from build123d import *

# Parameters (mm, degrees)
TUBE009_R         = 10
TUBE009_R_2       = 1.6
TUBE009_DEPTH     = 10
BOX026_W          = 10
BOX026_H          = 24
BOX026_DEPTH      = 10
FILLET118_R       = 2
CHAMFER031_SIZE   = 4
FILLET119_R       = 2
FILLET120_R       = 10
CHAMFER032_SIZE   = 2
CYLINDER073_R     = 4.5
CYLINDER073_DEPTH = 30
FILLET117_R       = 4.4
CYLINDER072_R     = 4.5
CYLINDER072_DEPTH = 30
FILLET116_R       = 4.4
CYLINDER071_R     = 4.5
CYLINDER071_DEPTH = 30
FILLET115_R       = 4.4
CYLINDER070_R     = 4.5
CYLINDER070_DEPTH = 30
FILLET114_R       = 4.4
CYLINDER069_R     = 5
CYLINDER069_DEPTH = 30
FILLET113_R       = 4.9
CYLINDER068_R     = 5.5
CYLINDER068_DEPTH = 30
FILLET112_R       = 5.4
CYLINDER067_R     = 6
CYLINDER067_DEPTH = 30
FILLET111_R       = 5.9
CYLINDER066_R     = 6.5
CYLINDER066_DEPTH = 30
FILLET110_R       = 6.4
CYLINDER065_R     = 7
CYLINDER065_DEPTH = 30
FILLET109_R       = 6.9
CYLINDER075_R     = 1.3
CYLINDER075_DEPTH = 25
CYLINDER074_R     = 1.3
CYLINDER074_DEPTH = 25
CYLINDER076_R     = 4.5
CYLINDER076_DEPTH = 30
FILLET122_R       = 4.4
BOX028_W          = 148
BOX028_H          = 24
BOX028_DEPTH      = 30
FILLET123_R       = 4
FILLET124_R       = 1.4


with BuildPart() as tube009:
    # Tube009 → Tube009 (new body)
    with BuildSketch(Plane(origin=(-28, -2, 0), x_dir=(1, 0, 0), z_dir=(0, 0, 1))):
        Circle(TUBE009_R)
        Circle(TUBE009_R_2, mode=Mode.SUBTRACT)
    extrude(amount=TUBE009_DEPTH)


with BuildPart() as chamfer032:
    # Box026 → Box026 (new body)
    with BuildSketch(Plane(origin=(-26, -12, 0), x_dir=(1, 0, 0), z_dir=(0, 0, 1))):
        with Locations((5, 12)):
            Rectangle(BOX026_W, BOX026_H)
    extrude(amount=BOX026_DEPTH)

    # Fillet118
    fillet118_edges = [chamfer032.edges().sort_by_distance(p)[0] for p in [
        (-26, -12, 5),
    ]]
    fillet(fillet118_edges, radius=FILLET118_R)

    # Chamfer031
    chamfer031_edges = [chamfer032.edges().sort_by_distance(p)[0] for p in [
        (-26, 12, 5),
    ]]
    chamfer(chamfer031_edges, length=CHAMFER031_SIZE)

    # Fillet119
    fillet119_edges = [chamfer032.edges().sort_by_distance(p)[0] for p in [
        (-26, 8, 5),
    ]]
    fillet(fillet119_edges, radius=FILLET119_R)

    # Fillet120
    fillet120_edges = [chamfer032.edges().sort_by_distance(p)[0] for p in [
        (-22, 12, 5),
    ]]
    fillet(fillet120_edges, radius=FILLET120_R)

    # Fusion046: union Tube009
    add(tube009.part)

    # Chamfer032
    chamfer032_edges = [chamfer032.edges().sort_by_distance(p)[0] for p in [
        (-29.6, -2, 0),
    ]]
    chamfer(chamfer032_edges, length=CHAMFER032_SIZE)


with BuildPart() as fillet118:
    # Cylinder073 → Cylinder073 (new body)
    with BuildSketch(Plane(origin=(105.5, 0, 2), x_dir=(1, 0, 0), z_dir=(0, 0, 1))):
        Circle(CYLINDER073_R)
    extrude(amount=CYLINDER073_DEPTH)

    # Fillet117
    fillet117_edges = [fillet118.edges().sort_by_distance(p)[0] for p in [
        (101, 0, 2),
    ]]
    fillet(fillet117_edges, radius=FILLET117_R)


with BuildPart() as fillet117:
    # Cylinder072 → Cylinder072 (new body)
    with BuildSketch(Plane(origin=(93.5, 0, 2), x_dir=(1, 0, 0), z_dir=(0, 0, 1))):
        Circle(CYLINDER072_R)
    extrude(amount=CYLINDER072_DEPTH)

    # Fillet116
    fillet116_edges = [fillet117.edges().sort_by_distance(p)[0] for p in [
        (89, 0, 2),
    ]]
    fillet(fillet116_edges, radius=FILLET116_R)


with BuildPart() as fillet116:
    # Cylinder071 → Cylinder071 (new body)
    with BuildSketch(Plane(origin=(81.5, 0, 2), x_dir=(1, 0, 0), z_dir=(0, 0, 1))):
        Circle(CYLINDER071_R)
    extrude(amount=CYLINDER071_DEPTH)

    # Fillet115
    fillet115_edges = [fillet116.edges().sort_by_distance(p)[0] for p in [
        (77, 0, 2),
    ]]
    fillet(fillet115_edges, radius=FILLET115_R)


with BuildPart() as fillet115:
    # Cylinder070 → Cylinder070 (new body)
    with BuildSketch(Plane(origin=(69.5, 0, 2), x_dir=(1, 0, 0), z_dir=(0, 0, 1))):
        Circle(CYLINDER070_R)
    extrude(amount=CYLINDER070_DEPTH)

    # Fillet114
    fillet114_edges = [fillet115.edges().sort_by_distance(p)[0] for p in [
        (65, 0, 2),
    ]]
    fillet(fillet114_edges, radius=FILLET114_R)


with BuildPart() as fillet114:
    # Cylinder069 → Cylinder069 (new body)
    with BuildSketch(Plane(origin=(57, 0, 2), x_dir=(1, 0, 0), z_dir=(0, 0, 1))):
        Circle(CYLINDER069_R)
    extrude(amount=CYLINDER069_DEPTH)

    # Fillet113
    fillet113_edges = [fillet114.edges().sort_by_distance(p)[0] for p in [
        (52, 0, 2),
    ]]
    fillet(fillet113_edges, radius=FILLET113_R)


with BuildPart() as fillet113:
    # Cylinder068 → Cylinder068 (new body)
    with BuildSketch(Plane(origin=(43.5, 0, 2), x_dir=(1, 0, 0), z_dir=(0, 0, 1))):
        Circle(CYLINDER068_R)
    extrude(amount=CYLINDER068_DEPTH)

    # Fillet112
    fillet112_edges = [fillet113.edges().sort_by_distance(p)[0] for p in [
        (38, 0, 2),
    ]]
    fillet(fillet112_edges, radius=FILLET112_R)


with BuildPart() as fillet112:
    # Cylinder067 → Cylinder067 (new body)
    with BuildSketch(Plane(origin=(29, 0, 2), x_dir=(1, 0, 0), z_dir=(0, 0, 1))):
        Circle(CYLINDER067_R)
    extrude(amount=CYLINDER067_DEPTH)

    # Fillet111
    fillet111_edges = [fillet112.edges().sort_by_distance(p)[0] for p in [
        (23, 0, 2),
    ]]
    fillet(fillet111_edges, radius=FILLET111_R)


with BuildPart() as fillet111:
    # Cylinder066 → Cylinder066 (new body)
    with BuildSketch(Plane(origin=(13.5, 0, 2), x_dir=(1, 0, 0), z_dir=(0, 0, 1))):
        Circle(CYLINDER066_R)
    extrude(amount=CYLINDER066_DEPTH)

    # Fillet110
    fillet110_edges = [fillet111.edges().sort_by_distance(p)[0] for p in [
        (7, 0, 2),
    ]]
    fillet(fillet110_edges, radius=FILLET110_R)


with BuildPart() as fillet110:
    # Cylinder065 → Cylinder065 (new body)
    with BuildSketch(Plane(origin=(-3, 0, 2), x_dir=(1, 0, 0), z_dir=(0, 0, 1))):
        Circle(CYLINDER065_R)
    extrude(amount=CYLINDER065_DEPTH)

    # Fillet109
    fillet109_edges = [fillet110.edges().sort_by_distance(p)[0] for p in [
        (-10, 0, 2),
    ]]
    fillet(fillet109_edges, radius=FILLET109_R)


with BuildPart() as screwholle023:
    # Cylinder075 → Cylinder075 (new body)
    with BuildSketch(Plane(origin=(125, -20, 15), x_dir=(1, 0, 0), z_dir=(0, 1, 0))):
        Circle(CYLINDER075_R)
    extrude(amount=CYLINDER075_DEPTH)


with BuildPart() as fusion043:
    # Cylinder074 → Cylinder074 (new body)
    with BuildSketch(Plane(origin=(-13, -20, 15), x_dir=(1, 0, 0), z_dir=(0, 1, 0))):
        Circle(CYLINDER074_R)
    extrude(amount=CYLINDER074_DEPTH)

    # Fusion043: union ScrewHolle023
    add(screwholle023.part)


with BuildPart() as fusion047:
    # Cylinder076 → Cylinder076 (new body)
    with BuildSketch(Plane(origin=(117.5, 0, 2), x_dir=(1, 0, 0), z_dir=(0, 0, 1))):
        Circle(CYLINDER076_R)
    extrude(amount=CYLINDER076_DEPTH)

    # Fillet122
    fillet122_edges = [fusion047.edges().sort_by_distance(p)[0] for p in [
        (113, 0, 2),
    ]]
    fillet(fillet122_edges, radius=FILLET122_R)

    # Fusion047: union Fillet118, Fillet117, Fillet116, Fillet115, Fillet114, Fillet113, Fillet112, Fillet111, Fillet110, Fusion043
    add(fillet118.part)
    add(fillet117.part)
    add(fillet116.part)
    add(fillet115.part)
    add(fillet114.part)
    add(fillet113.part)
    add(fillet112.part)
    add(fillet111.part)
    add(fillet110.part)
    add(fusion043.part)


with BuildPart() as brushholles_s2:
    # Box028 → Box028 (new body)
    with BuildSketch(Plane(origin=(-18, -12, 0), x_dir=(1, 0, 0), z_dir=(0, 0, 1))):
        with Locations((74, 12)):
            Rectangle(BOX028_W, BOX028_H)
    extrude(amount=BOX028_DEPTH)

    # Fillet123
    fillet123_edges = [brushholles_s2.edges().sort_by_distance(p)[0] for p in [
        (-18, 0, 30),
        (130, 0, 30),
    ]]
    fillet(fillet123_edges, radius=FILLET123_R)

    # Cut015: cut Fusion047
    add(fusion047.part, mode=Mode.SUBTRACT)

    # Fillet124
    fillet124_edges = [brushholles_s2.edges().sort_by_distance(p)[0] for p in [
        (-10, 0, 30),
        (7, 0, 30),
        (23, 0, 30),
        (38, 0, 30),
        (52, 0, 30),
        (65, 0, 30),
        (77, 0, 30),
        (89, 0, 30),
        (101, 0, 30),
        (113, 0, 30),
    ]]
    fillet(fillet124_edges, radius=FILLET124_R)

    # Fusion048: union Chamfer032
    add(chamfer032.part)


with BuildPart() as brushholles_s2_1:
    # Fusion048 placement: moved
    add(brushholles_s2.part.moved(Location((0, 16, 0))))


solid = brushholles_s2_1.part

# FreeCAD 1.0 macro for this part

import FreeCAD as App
import Part
import Sketcher
from FreeCAD import Vector
Q = App.Units.Quantity


def edges_at(feature, points):
    """Names of the edges that pass closest to the given points."""
    edges = feature.Shape.Edges
    near = lambda p: min(range(len(edges)), key=lambda i: edges[i].distToShape(Part.Vertex(*p))[0])
    return sorted({f"Edge{near(p) + 1}" for p in points})


def add_polygon(sketch, points):
    """Adds a closed chain of lines whose ends are joined by coincident constraints."""
    first, n = sketch.GeometryCount, len(points)
    for a, b in zip(points, points[1:] + points[:1]):
        sketch.addGeometry(Part.LineSegment(App.Vector(*a, 0), App.Vector(*b, 0)), False)
    for i in range(n):
        sketch.addConstraint(Sketcher.Constraint("Coincident", first + i, 2, first + (i + 1) % n, 1))

doc = App.newDocument("Part")
body = doc.addObject("PartDesign::Body", "Body")

sketch1 = body.newObject("Sketcher::SketchObject", "Sketch")
sketch1.AttachmentSupport = (doc.getObject("XY_Plane"), [""])
sketch1.MapMode = "FlatFace"
sketch1.addGeometry(Part.Circle(Vector(-28, -2, 0), Vector(0, 0, 1), 10), False)
sketch1.addGeometry(Part.Circle(Vector(-28, -2, 0), Vector(0, 0, 1), 1.6), False)
sketch1.addConstraint(Sketcher.Constraint("Coincident", 1, 3, 0, 3))
sketch1.addConstraint(Sketcher.Constraint("Diameter", 0, Q("20 mm")))
sketch1.addConstraint(Sketcher.Constraint("Diameter", 1, Q("3.2 mm")))
sketch1.addConstraint(Sketcher.Constraint("DistanceX", 0, 3, -1, 1, Q("28 mm")))
sketch1.addConstraint(Sketcher.Constraint("DistanceY", 0, 3, -1, 1, Q("2 mm")))
pad1 = body.newObject("PartDesign::Pad", "Pad")
pad1.Profile = sketch1
pad1.Length = 10
body2 = doc.addObject("PartDesign::Body", "Body001")

sketch2 = body2.newObject("Sketcher::SketchObject", "Sketch001")
sketch2.AttachmentSupport = (doc.getObject("XY_Plane001"), [""])
sketch2.MapMode = "FlatFace"
add_polygon(sketch2, [(-26, 12), (-26, -12), (-16, -12), (-16, 12)])
sketch2.addConstraint(Sketcher.Constraint("Vertical", 0))
sketch2.addConstraint(Sketcher.Constraint("Horizontal", 1))
sketch2.addConstraint(Sketcher.Constraint("Vertical", 2))
sketch2.addConstraint(Sketcher.Constraint("Horizontal", 3))
sketch2.addConstraint(Sketcher.Constraint("DistanceX", 1, 1, 1, 2, Q("10 mm")))
sketch2.addConstraint(Sketcher.Constraint("DistanceY", 0, 2, 0, 1, Q("24 mm")))
sketch2.addConstraint(Sketcher.Constraint("DistanceX", 0, 2, -1, 1, Q("26 mm")))
sketch2.addConstraint(Sketcher.Constraint("DistanceY", 0, 2, -1, 1, Q("12 mm")))
pad2 = body2.newObject("PartDesign::Pad", "Pad001")
pad2.Profile = sketch2
pad2.Length = 10
doc.recompute()

fillet = body2.newObject("PartDesign::Fillet", "Fillet")
fillet.Base = (pad2, edges_at(pad2, [(-26, -12, 5)]))
fillet.Radius = 2
doc.recompute()

chamfer = body2.newObject("PartDesign::Chamfer", "Chamfer")
chamfer.Base = (fillet, edges_at(fillet, [(-26, 12, 5)]))
chamfer.Size = 4
doc.recompute()

fillet2 = body2.newObject("PartDesign::Fillet", "Fillet001")
fillet2.Base = (chamfer, edges_at(chamfer, [(-26, 8, 5)]))
fillet2.Radius = 2
doc.recompute()

fillet3 = body2.newObject("PartDesign::Fillet", "Fillet002")
fillet3.Base = (fillet2, edges_at(fillet2, [(-22, 12, 5)]))
fillet3.Radius = 10
doc.recompute()

boolean = body2.newObject("PartDesign::Boolean", "Boolean")
boolean.Type = "Fuse"
boolean.addObjects([body])
doc.recompute()

chamfer2 = body2.newObject("PartDesign::Chamfer", "Chamfer001")
chamfer2.Base = (boolean, edges_at(boolean, [(-29.6, -2, 0)]))
chamfer2.Size = 2
body3 = doc.addObject("PartDesign::Body", "Body002")

sketch3 = body3.newObject("Sketcher::SketchObject", "Sketch002")
sketch3.AttachmentSupport = (doc.getObject("XY_Plane002"), [""])
sketch3.MapMode = "FlatFace"
sketch3.AttachmentOffset = App.Placement(Vector(0, 0, 2), App.Rotation())
sketch3.addGeometry(Part.Circle(Vector(105.5, 0, 0), Vector(0, 0, 1), 4.5), False)
sketch3.addConstraint(Sketcher.Constraint("PointOnObject", 0, 3, -1))
sketch3.addConstraint(Sketcher.Constraint("Diameter", 0, Q("9 mm")))
sketch3.addConstraint(Sketcher.Constraint("DistanceX", -1, 1, 0, 3, Q("105.5 mm")))
pad3 = body3.newObject("PartDesign::Pad", "Pad002")
pad3.Profile = sketch3
pad3.Length = 30
doc.recompute()

fillet4 = body3.newObject("PartDesign::Fillet", "Fillet003")
fillet4.Base = (pad3, edges_at(pad3, [(101, 0, 2)]))
fillet4.Radius = 4.4
body4 = doc.addObject("PartDesign::Body", "Body003")

sketch4 = body4.newObject("Sketcher::SketchObject", "Sketch003")
sketch4.AttachmentSupport = (doc.getObject("XY_Plane003"), [""])
sketch4.MapMode = "FlatFace"
sketch4.AttachmentOffset = App.Placement(Vector(0, 0, 2), App.Rotation())
sketch4.addGeometry(Part.Circle(Vector(93.5, 0, 0), Vector(0, 0, 1), 4.5), False)
sketch4.addConstraint(Sketcher.Constraint("PointOnObject", 0, 3, -1))
sketch4.addConstraint(Sketcher.Constraint("Diameter", 0, Q("9 mm")))
sketch4.addConstraint(Sketcher.Constraint("DistanceX", -1, 1, 0, 3, Q("93.5 mm")))
pad4 = body4.newObject("PartDesign::Pad", "Pad003")
pad4.Profile = sketch4
pad4.Length = 30
doc.recompute()

fillet5 = body4.newObject("PartDesign::Fillet", "Fillet004")
fillet5.Base = (pad4, edges_at(pad4, [(89, 0, 2)]))
fillet5.Radius = 4.4
body5 = doc.addObject("PartDesign::Body", "Body004")

sketch5 = body5.newObject("Sketcher::SketchObject", "Sketch004")
sketch5.AttachmentSupport = (doc.getObject("XY_Plane004"), [""])
sketch5.MapMode = "FlatFace"
sketch5.AttachmentOffset = App.Placement(Vector(0, 0, 2), App.Rotation())
sketch5.addGeometry(Part.Circle(Vector(81.5, 0, 0), Vector(0, 0, 1), 4.5), False)
sketch5.addConstraint(Sketcher.Constraint("PointOnObject", 0, 3, -1))
sketch5.addConstraint(Sketcher.Constraint("Diameter", 0, Q("9 mm")))
sketch5.addConstraint(Sketcher.Constraint("DistanceX", -1, 1, 0, 3, Q("81.5 mm")))
pad5 = body5.newObject("PartDesign::Pad", "Pad004")
pad5.Profile = sketch5
pad5.Length = 30
doc.recompute()

fillet6 = body5.newObject("PartDesign::Fillet", "Fillet005")
fillet6.Base = (pad5, edges_at(pad5, [(77, 0, 2)]))
fillet6.Radius = 4.4
body6 = doc.addObject("PartDesign::Body", "Body005")

sketch6 = body6.newObject("Sketcher::SketchObject", "Sketch005")
sketch6.AttachmentSupport = (doc.getObject("XY_Plane005"), [""])
sketch6.MapMode = "FlatFace"
sketch6.AttachmentOffset = App.Placement(Vector(0, 0, 2), App.Rotation())
sketch6.addGeometry(Part.Circle(Vector(69.5, 0, 0), Vector(0, 0, 1), 4.5), False)
sketch6.addConstraint(Sketcher.Constraint("PointOnObject", 0, 3, -1))
sketch6.addConstraint(Sketcher.Constraint("Diameter", 0, Q("9 mm")))
sketch6.addConstraint(Sketcher.Constraint("DistanceX", -1, 1, 0, 3, Q("69.5 mm")))
pad6 = body6.newObject("PartDesign::Pad", "Pad005")
pad6.Profile = sketch6
pad6.Length = 30
doc.recompute()

fillet7 = body6.newObject("PartDesign::Fillet", "Fillet006")
fillet7.Base = (pad6, edges_at(pad6, [(65, 0, 2)]))
fillet7.Radius = 4.4
body7 = doc.addObject("PartDesign::Body", "Body006")

sketch7 = body7.newObject("Sketcher::SketchObject", "Sketch006")
sketch7.AttachmentSupport = (doc.getObject("XY_Plane006"), [""])
sketch7.MapMode = "FlatFace"
sketch7.AttachmentOffset = App.Placement(Vector(0, 0, 2), App.Rotation())
sketch7.addGeometry(Part.Circle(Vector(57, 0, 0), Vector(0, 0, 1), 5), False)
sketch7.addConstraint(Sketcher.Constraint("PointOnObject", 0, 3, -1))
sketch7.addConstraint(Sketcher.Constraint("Diameter", 0, Q("10 mm")))
sketch7.addConstraint(Sketcher.Constraint("DistanceX", -1, 1, 0, 3, Q("57 mm")))
pad7 = body7.newObject("PartDesign::Pad", "Pad006")
pad7.Profile = sketch7
pad7.Length = 30
doc.recompute()

fillet8 = body7.newObject("PartDesign::Fillet", "Fillet007")
fillet8.Base = (pad7, edges_at(pad7, [(52, 0, 2)]))
fillet8.Radius = 4.9
body8 = doc.addObject("PartDesign::Body", "Body007")

sketch8 = body8.newObject("Sketcher::SketchObject", "Sketch007")
sketch8.AttachmentSupport = (doc.getObject("XY_Plane007"), [""])
sketch8.MapMode = "FlatFace"
sketch8.AttachmentOffset = App.Placement(Vector(0, 0, 2), App.Rotation())
sketch8.addGeometry(Part.Circle(Vector(43.5, 0, 0), Vector(0, 0, 1), 5.5), False)
sketch8.addConstraint(Sketcher.Constraint("PointOnObject", 0, 3, -1))
sketch8.addConstraint(Sketcher.Constraint("Diameter", 0, Q("11 mm")))
sketch8.addConstraint(Sketcher.Constraint("DistanceX", -1, 1, 0, 3, Q("43.5 mm")))
pad8 = body8.newObject("PartDesign::Pad", "Pad007")
pad8.Profile = sketch8
pad8.Length = 30
doc.recompute()

fillet9 = body8.newObject("PartDesign::Fillet", "Fillet008")
fillet9.Base = (pad8, edges_at(pad8, [(38, 0, 2)]))
fillet9.Radius = 5.4
body9 = doc.addObject("PartDesign::Body", "Body008")

sketch9 = body9.newObject("Sketcher::SketchObject", "Sketch008")
sketch9.AttachmentSupport = (doc.getObject("XY_Plane008"), [""])
sketch9.MapMode = "FlatFace"
sketch9.AttachmentOffset = App.Placement(Vector(0, 0, 2), App.Rotation())
sketch9.addGeometry(Part.Circle(Vector(29, 0, 0), Vector(0, 0, 1), 6), False)
sketch9.addConstraint(Sketcher.Constraint("PointOnObject", 0, 3, -1))
sketch9.addConstraint(Sketcher.Constraint("Diameter", 0, Q("12 mm")))
sketch9.addConstraint(Sketcher.Constraint("DistanceX", -1, 1, 0, 3, Q("29 mm")))
pad9 = body9.newObject("PartDesign::Pad", "Pad008")
pad9.Profile = sketch9
pad9.Length = 30
doc.recompute()

fillet10 = body9.newObject("PartDesign::Fillet", "Fillet009")
fillet10.Base = (pad9, edges_at(pad9, [(23, 0, 2)]))
fillet10.Radius = 5.9
body10 = doc.addObject("PartDesign::Body", "Body009")

sketch10 = body10.newObject("Sketcher::SketchObject", "Sketch009")
sketch10.AttachmentSupport = (doc.getObject("XY_Plane009"), [""])
sketch10.MapMode = "FlatFace"
sketch10.AttachmentOffset = App.Placement(Vector(0, 0, 2), App.Rotation())
sketch10.addGeometry(Part.Circle(Vector(13.5, 0, 0), Vector(0, 0, 1), 6.5), False)
sketch10.addConstraint(Sketcher.Constraint("PointOnObject", 0, 3, -1))
sketch10.addConstraint(Sketcher.Constraint("Diameter", 0, Q("13 mm")))
sketch10.addConstraint(Sketcher.Constraint("DistanceX", -1, 1, 0, 3, Q("13.5 mm")))
pad10 = body10.newObject("PartDesign::Pad", "Pad009")
pad10.Profile = sketch10
pad10.Length = 30
doc.recompute()

fillet11 = body10.newObject("PartDesign::Fillet", "Fillet010")
fillet11.Base = (pad10, edges_at(pad10, [(7, 0, 2)]))
fillet11.Radius = 6.4
body11 = doc.addObject("PartDesign::Body", "Body010")

sketch11 = body11.newObject("Sketcher::SketchObject", "Sketch010")
sketch11.AttachmentSupport = (doc.getObject("XY_Plane010"), [""])
sketch11.MapMode = "FlatFace"
sketch11.AttachmentOffset = App.Placement(Vector(0, 0, 2), App.Rotation())
sketch11.addGeometry(Part.Circle(Vector(-3, 0, 0), Vector(0, 0, 1), 7), False)
sketch11.addConstraint(Sketcher.Constraint("PointOnObject", 0, 3, -1))
sketch11.addConstraint(Sketcher.Constraint("Diameter", 0, Q("14 mm")))
sketch11.addConstraint(Sketcher.Constraint("DistanceX", 0, 3, -1, 1, Q("3 mm")))
pad11 = body11.newObject("PartDesign::Pad", "Pad010")
pad11.Profile = sketch11
pad11.Length = 30
doc.recompute()

fillet12 = body11.newObject("PartDesign::Fillet", "Fillet011")
fillet12.Base = (pad11, edges_at(pad11, [(-10, 0, 2)]))
fillet12.Radius = 6.9
body12 = doc.addObject("PartDesign::Body", "Body011")

sketch12 = body12.newObject("Sketcher::SketchObject", "Sketch011")
sketch12.AttachmentSupport = (doc.getObject("XZ_Plane011"), [""])
sketch12.MapMode = "FlatFace"
sketch12.AttachmentOffset = App.Placement(Vector(0, 0, 20), App.Rotation())
sketch12.addGeometry(Part.Circle(Vector(125, 15, 0), Vector(0, 0, 1), 1.3), False)
sketch12.addConstraint(Sketcher.Constraint("Diameter", 0, Q("2.6 mm")))
sketch12.addConstraint(Sketcher.Constraint("DistanceX", -1, 1, 0, 3, Q("125 mm")))
sketch12.addConstraint(Sketcher.Constraint("DistanceY", -1, 1, 0, 3, Q("15 mm")))
pad12 = body12.newObject("PartDesign::Pad", "Pad011")
pad12.Profile = sketch12
pad12.Length = 25
pad12.Reversed = True
body13 = doc.addObject("PartDesign::Body", "Body012")
body13.AllowCompound = True

sketch13 = body13.newObject("Sketcher::SketchObject", "Sketch012")
sketch13.AttachmentSupport = (doc.getObject("XZ_Plane012"), [""])
sketch13.MapMode = "FlatFace"
sketch13.AttachmentOffset = App.Placement(Vector(0, 0, 20), App.Rotation())
sketch13.addGeometry(Part.Circle(Vector(-13, 15, 0), Vector(0, 0, 1), 1.3), False)
sketch13.addConstraint(Sketcher.Constraint("Diameter", 0, Q("2.6 mm")))
sketch13.addConstraint(Sketcher.Constraint("DistanceX", 0, 3, -1, 1, Q("13 mm")))
sketch13.addConstraint(Sketcher.Constraint("DistanceY", -1, 1, 0, 3, Q("15 mm")))
pad13 = body13.newObject("PartDesign::Pad", "Pad012")
pad13.Profile = sketch13
pad13.Length = 25
pad13.Reversed = True
doc.recompute()

boolean2 = body13.newObject("PartDesign::Boolean", "Boolean001")
boolean2.Type = "Fuse"
boolean2.addObjects([body12])
body14 = doc.addObject("PartDesign::Body", "Body013")
body14.AllowCompound = True

sketch14 = body14.newObject("Sketcher::SketchObject", "Sketch013")
sketch14.AttachmentSupport = (doc.getObject("XY_Plane013"), [""])
sketch14.MapMode = "FlatFace"
sketch14.AttachmentOffset = App.Placement(Vector(0, 0, 2), App.Rotation())
sketch14.addGeometry(Part.Circle(Vector(117.5, 0, 0), Vector(0, 0, 1), 4.5), False)
sketch14.addConstraint(Sketcher.Constraint("PointOnObject", 0, 3, -1))
sketch14.addConstraint(Sketcher.Constraint("Diameter", 0, Q("9 mm")))
sketch14.addConstraint(Sketcher.Constraint("DistanceX", -1, 1, 0, 3, Q("117.5 mm")))
pad14 = body14.newObject("PartDesign::Pad", "Pad013")
pad14.Profile = sketch14
pad14.Length = 30
doc.recompute()

fillet13 = body14.newObject("PartDesign::Fillet", "Fillet012")
fillet13.Base = (pad14, edges_at(pad14, [(113, 0, 2)]))
fillet13.Radius = 4.4
doc.recompute()

boolean3 = body14.newObject("PartDesign::Boolean", "Boolean002")
boolean3.Type = "Fuse"
boolean3.addObjects([body3])
doc.recompute()

boolean4 = body14.newObject("PartDesign::Boolean", "Boolean003")
boolean4.Type = "Fuse"
boolean4.addObjects([body4])
doc.recompute()

boolean5 = body14.newObject("PartDesign::Boolean", "Boolean004")
boolean5.Type = "Fuse"
boolean5.addObjects([body5])
doc.recompute()

boolean6 = body14.newObject("PartDesign::Boolean", "Boolean005")
boolean6.Type = "Fuse"
boolean6.addObjects([body6])
doc.recompute()

boolean7 = body14.newObject("PartDesign::Boolean", "Boolean006")
boolean7.Type = "Fuse"
boolean7.addObjects([body7])
doc.recompute()

boolean8 = body14.newObject("PartDesign::Boolean", "Boolean007")
boolean8.Type = "Fuse"
boolean8.addObjects([body8])
doc.recompute()

boolean9 = body14.newObject("PartDesign::Boolean", "Boolean008")
boolean9.Type = "Fuse"
boolean9.addObjects([body9])
doc.recompute()

boolean10 = body14.newObject("PartDesign::Boolean", "Boolean009")
boolean10.Type = "Fuse"
boolean10.addObjects([body10])
doc.recompute()

boolean11 = body14.newObject("PartDesign::Boolean", "Boolean010")
boolean11.Type = "Fuse"
boolean11.addObjects([body11])
doc.recompute()

boolean12 = body14.newObject("PartDesign::Boolean", "Boolean011")
boolean12.Type = "Fuse"
boolean12.addObjects([body13])
body15 = doc.addObject("PartDesign::Body", "Body014")

sketch15 = body15.newObject("Sketcher::SketchObject", "Sketch014")
sketch15.AttachmentSupport = (doc.getObject("XY_Plane014"), [""])
sketch15.MapMode = "FlatFace"
add_polygon(sketch15, [(-18, 12), (-18, -12), (130, -12), (130, 12)])
sketch15.addConstraint(Sketcher.Constraint("Vertical", 0))
sketch15.addConstraint(Sketcher.Constraint("Horizontal", 1))
sketch15.addConstraint(Sketcher.Constraint("Vertical", 2))
sketch15.addConstraint(Sketcher.Constraint("Horizontal", 3))
sketch15.addConstraint(Sketcher.Constraint("DistanceX", 1, 1, 1, 2, Q("148 mm")))
sketch15.addConstraint(Sketcher.Constraint("DistanceY", 0, 2, 0, 1, Q("24 mm")))
sketch15.addConstraint(Sketcher.Constraint("DistanceX", 0, 2, -1, 1, Q("18 mm")))
sketch15.addConstraint(Sketcher.Constraint("DistanceY", 0, 2, -1, 1, Q("12 mm")))
pad15 = body15.newObject("PartDesign::Pad", "Pad014")
pad15.Profile = sketch15
pad15.Length = 30
doc.recompute()

fillet14 = body15.newObject("PartDesign::Fillet", "Fillet013")
fillet14.Base = (pad15, edges_at(pad15, [(-18, 0, 30), (130, 0, 30)]))
fillet14.Radius = 4
doc.recompute()

boolean13 = body15.newObject("PartDesign::Boolean", "Boolean012")
boolean13.Type = "Cut"
boolean13.addObjects([body14])
doc.recompute()

fillet15 = body15.newObject("PartDesign::Fillet", "Fillet014")
fillet15.Base = (boolean13, edges_at(boolean13, [
    (-10, 0, 30),
    (7, 0, 30),
    (23, 0, 30),
    (38, 0, 30),
    (52, 0, 30),
    (65, 0, 30),
    (77, 0, 30),
    (89, 0, 30),
    (101, 0, 30),
    (113, 0, 30),
]))
fillet15.Radius = 1.4
doc.recompute()

boolean14 = body15.newObject("PartDesign::Boolean", "Boolean013")
boolean14.Type = "Fuse"
boolean14.addObjects([body2])
body16 = doc.addObject("PartDesign::Body", "Body015")
doc.recompute()

body15.Placement = App.Placement(Vector(0, 16, 0), App.Rotation(Vector(0, 0, 1), 0))
boolean15 = body16.newObject("PartDesign::Boolean", "Boolean014")
boolean15.Type = "Fuse"
boolean15.addObjects([body15])

doc.recompute()
